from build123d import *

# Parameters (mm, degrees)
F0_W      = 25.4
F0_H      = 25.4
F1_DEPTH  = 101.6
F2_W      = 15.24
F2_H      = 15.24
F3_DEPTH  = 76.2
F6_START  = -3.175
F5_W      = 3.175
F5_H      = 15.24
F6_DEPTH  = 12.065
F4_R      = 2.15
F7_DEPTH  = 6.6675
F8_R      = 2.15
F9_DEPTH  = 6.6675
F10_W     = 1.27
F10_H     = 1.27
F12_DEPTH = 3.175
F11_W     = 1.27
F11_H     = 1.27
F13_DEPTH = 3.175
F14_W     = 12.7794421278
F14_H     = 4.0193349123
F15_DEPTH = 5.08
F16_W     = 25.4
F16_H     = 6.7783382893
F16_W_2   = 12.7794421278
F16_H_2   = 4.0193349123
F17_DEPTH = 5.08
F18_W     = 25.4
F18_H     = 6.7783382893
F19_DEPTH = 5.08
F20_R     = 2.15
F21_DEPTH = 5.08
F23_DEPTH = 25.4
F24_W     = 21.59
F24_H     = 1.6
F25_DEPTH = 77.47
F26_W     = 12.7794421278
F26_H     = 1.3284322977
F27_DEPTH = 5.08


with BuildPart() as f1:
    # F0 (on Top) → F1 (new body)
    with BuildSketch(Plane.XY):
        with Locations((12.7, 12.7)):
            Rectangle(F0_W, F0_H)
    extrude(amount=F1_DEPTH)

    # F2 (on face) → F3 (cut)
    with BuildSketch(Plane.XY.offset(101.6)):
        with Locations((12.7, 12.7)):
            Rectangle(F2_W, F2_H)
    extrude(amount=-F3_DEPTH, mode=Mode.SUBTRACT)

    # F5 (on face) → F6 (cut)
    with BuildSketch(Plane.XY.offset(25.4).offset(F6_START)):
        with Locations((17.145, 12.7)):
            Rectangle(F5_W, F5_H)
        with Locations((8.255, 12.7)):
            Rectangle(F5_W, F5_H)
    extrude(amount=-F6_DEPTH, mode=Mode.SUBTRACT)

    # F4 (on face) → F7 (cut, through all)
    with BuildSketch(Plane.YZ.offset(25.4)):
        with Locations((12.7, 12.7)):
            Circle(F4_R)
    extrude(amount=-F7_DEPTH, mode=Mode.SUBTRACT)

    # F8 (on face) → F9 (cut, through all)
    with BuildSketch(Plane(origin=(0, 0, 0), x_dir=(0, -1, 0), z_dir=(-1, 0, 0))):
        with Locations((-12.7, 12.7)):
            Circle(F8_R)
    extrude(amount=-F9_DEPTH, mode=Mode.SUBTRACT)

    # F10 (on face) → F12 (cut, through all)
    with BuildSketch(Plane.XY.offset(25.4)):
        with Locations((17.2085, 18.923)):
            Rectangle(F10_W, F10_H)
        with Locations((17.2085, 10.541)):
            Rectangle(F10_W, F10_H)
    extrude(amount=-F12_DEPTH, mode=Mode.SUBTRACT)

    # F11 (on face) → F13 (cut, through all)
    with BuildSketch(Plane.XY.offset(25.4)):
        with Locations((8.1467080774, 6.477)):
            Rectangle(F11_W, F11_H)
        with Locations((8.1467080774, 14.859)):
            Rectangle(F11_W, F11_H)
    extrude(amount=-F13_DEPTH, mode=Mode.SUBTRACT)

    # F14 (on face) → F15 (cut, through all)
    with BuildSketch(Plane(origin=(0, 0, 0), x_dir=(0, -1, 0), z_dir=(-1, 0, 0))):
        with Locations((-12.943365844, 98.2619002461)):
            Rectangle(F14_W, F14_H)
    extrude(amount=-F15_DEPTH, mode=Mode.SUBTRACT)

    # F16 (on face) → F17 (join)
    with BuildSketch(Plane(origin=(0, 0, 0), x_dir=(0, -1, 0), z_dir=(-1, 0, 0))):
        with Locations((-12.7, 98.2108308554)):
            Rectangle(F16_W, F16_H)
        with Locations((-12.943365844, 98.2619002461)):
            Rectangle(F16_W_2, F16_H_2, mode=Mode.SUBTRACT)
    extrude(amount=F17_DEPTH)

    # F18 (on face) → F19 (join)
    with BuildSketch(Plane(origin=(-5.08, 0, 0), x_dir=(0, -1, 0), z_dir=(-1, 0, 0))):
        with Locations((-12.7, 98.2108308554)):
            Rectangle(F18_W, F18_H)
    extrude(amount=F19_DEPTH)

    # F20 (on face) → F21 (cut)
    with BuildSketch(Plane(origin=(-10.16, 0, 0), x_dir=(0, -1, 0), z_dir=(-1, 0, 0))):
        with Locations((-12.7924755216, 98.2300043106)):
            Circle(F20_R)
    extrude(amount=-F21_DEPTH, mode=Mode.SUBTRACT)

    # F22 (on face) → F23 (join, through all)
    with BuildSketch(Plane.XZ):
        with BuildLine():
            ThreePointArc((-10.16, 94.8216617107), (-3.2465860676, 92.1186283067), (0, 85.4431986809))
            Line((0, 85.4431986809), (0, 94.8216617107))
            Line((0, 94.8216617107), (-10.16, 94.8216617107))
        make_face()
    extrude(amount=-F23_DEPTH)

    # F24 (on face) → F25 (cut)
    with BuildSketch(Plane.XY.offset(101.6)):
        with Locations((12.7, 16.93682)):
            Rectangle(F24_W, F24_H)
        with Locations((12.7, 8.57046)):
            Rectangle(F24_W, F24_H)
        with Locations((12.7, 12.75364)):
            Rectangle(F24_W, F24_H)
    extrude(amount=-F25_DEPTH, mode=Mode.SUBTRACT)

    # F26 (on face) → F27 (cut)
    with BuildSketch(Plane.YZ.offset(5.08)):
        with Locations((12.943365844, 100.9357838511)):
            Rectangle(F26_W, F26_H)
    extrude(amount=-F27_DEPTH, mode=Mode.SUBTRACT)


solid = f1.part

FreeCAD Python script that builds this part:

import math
import FreeCAD as App
import Part
import Sketcher

V = App.Vector
Q = App.Units.Quantity


def add_polygon(sketch, points):
    """Adds a closed chain of lines whose ends are joined by coincident constraints."""
    first, n = sketch.GeometryCount, len(points)
    for a, b in zip(points, points[1:] + points[:1]):
        sketch.addGeometry(Part.LineSegment(App.Vector(*a, 0), App.Vector(*b, 0)), False)
    for i in range(n):
        sketch.addConstraint(Sketcher.Constraint("Coincident", first + i, 2, first + (i + 1) % n, 1))

doc = App.newDocument("Part")
body = doc.addObject("PartDesign::Body", "Body")

sketch1 = doc.addObject("Sketcher::SketchObject", "Sketch")
body.addObject(sketch1)
sketch1.AttachmentSupport = (doc.XY_Plane, [""])
sketch1.MapMode = "FlatFace"
add_polygon(sketch1, [(0, 25), (0, 0), (25, 0), (25, 25)])
sketch1.addConstraint([
    Sketcher.Constraint("Vertical", 0),
    Sketcher.Constraint("Horizontal", 1),
    Sketcher.Constraint("Vertical", 2),
    Sketcher.Constraint("Horizontal", 3),
    Sketcher.Constraint("Coincident", 0, 2, -1, 1),
    Sketcher.Constraint("Equal", 3, 0),
    Sketcher.Constraint("DistanceX", 1, 1, 1, 2, Q("1 in")),
])
pad1 = doc.addObject("PartDesign::Pad", "Pad")
body.addObject(pad1)
pad1.Profile = sketch1
pad1.Length = Q("4 in")

sketch2 = doc.addObject("Sketcher::SketchObject", "Sketch001")
body.addObject(sketch2)
sketch2.AttachmentSupport = (doc.XY_Plane, [""])
sketch2.MapMode = "FlatFace"
sketch2.AttachmentOffset = App.Placement(V(0, 0, 4 * 25.4), App.Rotation())
add_polygon(sketch2, [(5, 20), (5, 5), (20, 5), (20, 20)])
sketch2.addConstraint([
    Sketcher.Constraint("Vertical", 0),
    Sketcher.Constraint("Horizontal", 1),
    Sketcher.Constraint("Vertical", 2),
    Sketcher.Constraint("Horizontal", 3),
    Sketcher.Constraint("Equal", 3, 0),
    Sketcher.Constraint("DistanceX", 1, 1, 1, 2, Q("0.6 in")),
    Sketcher.Constraint("DistanceX", -1, 1, 0, 2, Q("0.2 in")),
    Sketcher.Constraint("DistanceY", -1, 1, 0, 2, Q("0.2 in")),
])
pocket1 = doc.addObject("PartDesign::Pocket", "Pocket")
body.addObject(pocket1)
pocket1.Profile = sketch2
pocket1.Length = Q("3 in")

sketch3 = doc.addObject("Sketcher::SketchObject", "Sketch002")
body.addObject(sketch3)
sketch3.AttachmentSupport = (doc.XY_Plane, [""])
sketch3.MapMode = "FlatFace"
sketch3.AttachmentOffset = App.Placement(V(0, 0, 0.875 * 25.4), App.Rotation())
add_polygon(sketch3, [(15.6, 20.3), (15.6, 5.1), (18.7, 5.1), (18.7, 20.3)])
add_polygon(sketch3, [(6.7, 20.3), (6.7, 5.1), (9.8, 5.1), (9.8, 20.3)])
sketch3.addConstraint([
    Sketcher.Constraint("Vertical", 0),
    Sketcher.Constraint("Horizontal", 1),
    Sketcher.Constraint("Vertical", 2),
    Sketcher.Constraint("Horizontal", 3),
    Sketcher.Constraint("Vertical", 4),
    Sketcher.Constraint("Horizontal", 5),
    Sketcher.Constraint("Vertical", 6),
    Sketcher.Constraint("Horizontal", 7),
    Sketcher.Constraint("Horizontal", 1, 2, 4, 2),
    Sketcher.Constraint("Horizontal", 3, 2, 6, 2),
    Sketcher.Constraint("Equal", 3, 5),
    Sketcher.Constraint("DistanceY", 0, 2, 0, 1, Q("0.6 in")),
    Sketcher.Constraint("DistanceY", -1, 1, 0, 2, Q("0.2 in")),
    Sketcher.Constraint("DistanceX", 1, 1, 1, 2, Q("0.125 in")),
    Sketcher.Constraint("DistanceX", 4, 2, 0, 2, Q("0.35 in")),
    Sketcher.Constraint("DistanceX", -1, 1, 0, 2, Q("0.6125 in")),
])
pocket2 = doc.addObject("PartDesign::Pocket", "Pocket001")
body.addObject(pocket2)
pocket2.Profile = sketch3
pocket2.Length = Q("0.475 in")

sketch4 = doc.addObject("Sketcher::SketchObject", "Sketch003")
body.addObject(sketch4)
sketch4.AttachmentSupport = (doc.YZ_Plane, [""])
sketch4.MapMode = "FlatFace"
sketch4.AttachmentOffset = App.Placement(V(0, 0, 1 * 25.4), App.Rotation())
sketch4.addGeometry(Part.Circle(V(12.7, 12.7, 0), V(0, 0, 1), 2.1), False)
sketch4.addConstraint([
    Sketcher.Constraint("DistanceX", -1, 1, 0, 3, Q("0.5 in")),
    Sketcher.Constraint("DistanceY", -1, 1, 0, 3, Q("0.5 in")),
    Sketcher.Constraint("Diameter", 0, Q("4.3 mm")),
])
pocket3 = doc.addObject("PartDesign::Pocket", "Pocket002")
body.addObject(pocket3)
pocket3.Profile = sketch4
pocket3.Length = Q("0.2625 in")

sketch5 = doc.addObject("Sketcher::SketchObject", "Sketch004")
body.addObject(sketch5)
sketch5.AttachmentSupport = (doc.YZ_Plane, [""])
sketch5.MapMode = "FlatFace"
sketch5.addGeometry(Part.Circle(V(12.7, 12.7, 0), V(0, 0, 1), 2.1), False)
sketch5.addConstraint([
    Sketcher.Constraint("DistanceX", -1, 1, 0, 3, Q("0.5 in")),
    Sketcher.Constraint("DistanceY", -1, 1, 0, 3, Q("0.5 in")),
    Sketcher.Constraint("Diameter", 0, Q("4.3 mm")),
])
pocket4 = doc.addObject("PartDesign::Pocket", "Pocket003")
body.addObject(pocket4)
pocket4.Profile = sketch5
pocket4.Length = Q("0.2625 in")
pocket4.Reversed = True

sketch6 = doc.addObject("Sketcher::SketchObject", "Sketch005")
body.addObject(sketch6)
sketch6.AttachmentSupport = (doc.XY_Plane, [""])
sketch6.MapMode = "FlatFace"
sketch6.AttachmentOffset = App.Placement(V(0, 0, 1 * 25.4), App.Rotation())
add_polygon(sketch6, [(16.6, 19.6), (16.6, 18.3), (17.8, 18.3), (17.8, 19.6)])
add_polygon(sketch6, [(16.6, 11.2), (16.6, 9.9), (17.8, 9.9), (17.8, 11.2)])
sketch6.addConstraint([
    Sketcher.Constraint("Vertical", 0),
    Sketcher.Constraint("Horizontal", 1),
    Sketcher.Constraint("Vertical", 2),
    Sketcher.Constraint("Horizontal", 3),
    Sketcher.Constraint("Vertical", 4),
    Sketcher.Constraint("Horizontal", 5),
    Sketcher.Constraint("Vertical", 6),
    Sketcher.Constraint("Horizontal", 7),
    Sketcher.Constraint("Vertical", 3, 2, 4, 2),
    Sketcher.Constraint("Vertical", 2, 2, 5, 2),
    Sketcher.Constraint("Equal", 7, 0),
    Sketcher.Constraint("Equal", 2, 4),
    Sketcher.Constraint("DistanceX", 1, 1, 1, 2, Q("0.05 in")),
    Sketcher.Constraint("DistanceY", -1, 1, 0, 2, Q("0.72 in")),
    Sketcher.Constraint("DistanceY", -1, 1, 4, 2, Q("0.39 in")),
    Sketcher.Constraint("DistanceX", -1, 1, 0, 2, Q("0.6525 in")),
])
pocket5 = doc.addObject("PartDesign::Pocket", "Pocket004")
body.addObject(pocket5)
pocket5.Profile = sketch6
pocket5.Length = Q("0.125 in")

sketch7 = doc.addObject("Sketcher::SketchObject", "Sketch006")
body.addObject(sketch7)
sketch7.AttachmentSupport = (doc.XY_Plane, [""])
sketch7.MapMode = "FlatFace"
sketch7.AttachmentOffset = App.Placement(V(0, 0, 1 * 25.4), App.Rotation())
add_polygon(sketch7, [(7.5, 7.1), (7.5, 5.8), (8.8, 5.8), (8.8, 7.1)])
add_polygon(sketch7, [(7.5, 15.5), (7.5, 14.2), (8.8, 14.2), (8.8, 15.5)])
sketch7.addConstraint([
    Sketcher.Constraint("Vertical", 0),
    Sketcher.Constraint("Horizontal", 1),
    Sketcher.Constraint("Vertical", 2),
    Sketcher.Constraint("Horizontal", 3),
    Sketcher.Constraint("Vertical", 4),
    Sketcher.Constraint("Horizontal", 5),
    Sketcher.Constraint("Vertical", 6),
    Sketcher.Constraint("Horizontal", 7),
    Sketcher.Constraint("Vertical", 3, 2, 4, 2),
    Sketcher.Constraint("Vertical", 2, 2, 5, 2),
    Sketcher.Constraint("Equal", 7, 0),
    Sketcher.Constraint("Equal", 2, 4),
    Sketcher.Constraint("DistanceX", 1, 1, 1, 2, Q("0.05 in")),
    Sketcher.Constraint("DistanceY", -1, 1, 0, 2, Q("0.23 in")),
    Sketcher.Constraint("DistanceY", -1, 1, 4, 2, Q("0.56 in")),
    Sketcher.Constraint("DistanceX", -1, 1, 0, 2, Q("7.511708 mm")),
])
pocket6 = doc.addObject("PartDesign::Pocket", "Pocket005")
body.addObject(pocket6)
pocket6.Profile = sketch7
pocket6.Length = Q("0.125 in")

sketch8 = doc.addObject("Sketcher::SketchObject", "Sketch007")
body.addObject(sketch8)
sketch8.AttachmentSupport = (doc.YZ_Plane, [""])
sketch8.MapMode = "FlatFace"
add_polygon(sketch8, [(19.3, 100.3), (19.3, 96.3), (6.6, 96.3), (6.6, 100.3)])
sketch8.addConstraint([
    Sketcher.Constraint("Vertical", 0),
    Sketcher.Constraint("Horizontal", 1),
    Sketcher.Constraint("Vertical", 2),
    Sketcher.Constraint("Horizontal", 3),
    Sketcher.Constraint("DistanceX", 1, 2, 1, 1, Q("12.779442 mm")),
    Sketcher.Constraint("DistanceY", 0, 2, 0, 1, Q("4.019335 mm")),
    Sketcher.Constraint("DistanceX", -1, 1, 0, 2, Q("19.333087 mm")),
    Sketcher.Constraint("DistanceY", -1, 1, 0, 2, Q("96.252233 mm")),
])
pocket7 = doc.addObject("PartDesign::Pocket", "Pocket006")
body.addObject(pocket7)
pocket7.Profile = sketch8
pocket7.Length = Q("0.2 in")
pocket7.Reversed = True

sketch9 = doc.addObject("Sketcher::SketchObject", "Sketch008")
body.addObject(sketch9)
sketch9.AttachmentSupport = (doc.YZ_Plane, [""])
sketch9.MapMode = "FlatFace"
add_polygon(sketch9, [(25.4, 101.6), (25.4, 94.8), (0, 94.8), (0, 101.6)])
add_polygon(sketch9, [(6.6, 96.3), (19.3, 96.3), (19.3, 100.3), (6.6, 100.3)])
sketch9.addConstraint([
    Sketcher.Constraint("Vertical", 0),
    Sketcher.Constraint("Horizontal", 1),
    Sketcher.Constraint("Vertical", 2),
    Sketcher.Constraint("Horizontal", 3),
    Sketcher.Constraint("Horizontal", 4),
    Sketcher.Constraint("Vertical", 5),
    Sketcher.Constraint("Horizontal", 6),
    Sketcher.Constraint("Vertical", 7),
    Sketcher.Constraint("PointOnObject", 1, 2, -2),
    Sketcher.Constraint("DistanceX", 1, 2, 1, 1, Q("1 in")),
    Sketcher.Constraint("DistanceY", -1, 1, 2, 2, Q("4 in")),
    Sketcher.Constraint("DistanceY", 0, 2, 0, 1, Q("6.778338 mm")),
    Sketcher.Constraint("DistanceX", 4, 1, 4, 2, Q("12.779442 mm")),
    Sketcher.Constraint("DistanceY", 5, 1, 5, 2, Q("4.019335 mm")),
    Sketcher.Constraint("DistanceY", 0, 2, 4, 2, Q("1.430571 mm")),
    Sketcher.Constraint("DistanceX", -1, 1, 4, 2, Q("19.333087 mm")),
])
pad2 = doc.addObject("PartDesign::Pad", "Pad001")
body.addObject(pad2)
pad2.Profile = sketch9
pad2.Length = Q("0.2 in")
pad2.Reversed = True

sketch10 = doc.addObject("Sketcher::SketchObject", "Sketch009")
body.addObject(sketch10)
sketch10.AttachmentSupport = (doc.YZ_Plane, [""])
sketch10.MapMode = "FlatFace"
sketch10.AttachmentOffset = App.Placement(V(0, 0, -0.2 * 25.4), App.Rotation())
add_polygon(sketch10, [(25, 102), (25, 95), (0, 95), (0, 102)])
sketch10.addConstraint([
    Sketcher.Constraint("Vertical", 0),
    Sketcher.Constraint("Horizontal", 1),
    Sketcher.Constraint("Vertical", 2),
    Sketcher.Constraint("Horizontal", 3),
    Sketcher.Constraint("PointOnObject", 1, 2, -2),
    Sketcher.Constraint("DistanceX", 1, 2, 1, 1, Q("1 in")),
    Sketcher.Constraint("DistanceY", -1, 1, 2, 2, Q("4 in")),
    Sketcher.Constraint("DistanceY", 0, 2, 0, 1, Q("6.778338 mm")),
])
pad3 = doc.addObject("PartDesign::Pad", "Pad002")
body.addObject(pad3)
pad3.Profile = sketch10
pad3.Length = Q("0.2 in")
pad3.Reversed = True

sketch11 = doc.addObject("Sketcher::SketchObject", "Sketch010")
body.addObject(sketch11)
sketch11.AttachmentSupport = (doc.YZ_Plane, [""])
sketch11.MapMode = "FlatFace"
sketch11.AttachmentOffset = App.Placement(V(0, 0, -0.4 * 25.4), App.Rotation())
sketch11.addGeometry(Part.Circle(V(12.8, 98.2, 0), V(0, 0, 1), 2.1), False)
sketch11.addConstraint([
    Sketcher.Constraint("Diameter", 0, Q("4.3 mm")),
    Sketcher.Constraint("DistanceX", -1, 1, 0, 3, Q("12.792476 mm")),
    Sketcher.Constraint("DistanceY", -1, 1, 0, 3, Q("98.230004 mm")),
])
pocket8 = doc.addObject("PartDesign::Pocket", "Pocket007")
body.addObject(pocket8)
pocket8.Profile = sketch11
pocket8.Length = Q("0.2 in")
pocket8.Reversed = True

sketch12 = doc.addObject("Sketcher::SketchObject", "Sketch011")
body.addObject(sketch12)
sketch12.AttachmentSupport = (doc.XZ_Plane, [""])
sketch12.MapMode = "FlatFace"
sketch12.addGeometry([
    Part.ArcOfCircle(Part.Circle(V(-10, 85, 0), V(0, 0, 1), 10), math.radians(5), math.radians(90)),
    Part.LineSegment(V(0, 85, 0), V(0, 95, 0)),
    Part.LineSegment(V(0, 95, 0), V(-10, 95, 0)),
], False)
sketch12.addConstraint([
    Sketcher.Constraint("Coincident", 0, 1, 1, 1),
    Sketcher.Constraint("Coincident", 1, 2, 2, 1),
    Sketcher.Constraint("Tangent", 2, 2, 0, 2),
    Sketcher.Constraint("Vertical", 1),
    Sketcher.Constraint("Horizontal", 2),
    Sketcher.Constraint("PointOnObject", 0, 1, -2),
    Sketcher.Constraint("DistanceX", 2, 2, 2, 1, Q("0.4 in")),
    Sketcher.Constraint("Radius", 0, Q("10.192564 mm")),
    Sketcher.Constraint("DistanceY", -1, 1, 0, 1, Q("85.443199 mm")),
])
pad4 = doc.addObject("PartDesign::Pad", "Pad003")
body.addObject(pad4)
pad4.Profile = sketch12
pad4.Length = Q("1 in")
pad4.Reversed = True

sketch13 = doc.addObject("Sketcher::SketchObject", "Sketch012")
body.addObject(sketch13)
sketch13.AttachmentSupport = (doc.XY_Plane, [""])
sketch13.MapMode = "FlatFace"
sketch13.AttachmentOffset = App.Placement(V(0, 0, 4 * 25.4), App.Rotation())
add_polygon(sketch13, [(1.9, 17.7), (1.9, 16.1), (23.5, 16.1), (23.5, 17.7)])
add_polygon(sketch13, [(1.9, 9.4), (1.9, 7.8), (23.5, 7.8), (23.5, 9.4)])
add_polygon(sketch13, [(1.9, 13.6), (1.9, 12), (23.5, 12), (23.5, 13.6)])
sketch13.addConstraint([
    Sketcher.Constraint("Vertical", 0),
    Sketcher.Constraint("Horizontal", 1),
    Sketcher.Constraint("Vertical", 2),
    Sketcher.Constraint("Horizontal", 3),
    Sketcher.Constraint("Vertical", 4),
    Sketcher.Constraint("Horizontal", 5),
    Sketcher.Constraint("Vertical", 6),
    Sketcher.Constraint("Horizontal", 7),
    Sketcher.Constraint("Vertical", 8),
    Sketcher.Constraint("Horizontal", 9),
    Sketcher.Constraint("Vertical", 10),
    Sketcher.Constraint("Horizontal", 11),
    Sketcher.Constraint("Vertical", 3, 2, 4, 2),
    Sketcher.Constraint("Vertical", 2, 2, 5, 2),
    Sketcher.Constraint("Vertical", 7, 2, 8, 2),
    Sketcher.Constraint("Vertical", 6, 2, 9, 2),
    Sketcher.Constraint("Equal", 2, 4),
    Sketcher.Constraint("Equal", 6, 8),
    Sketcher.Constraint("DistanceX", 1, 1, 1, 2, Q("0.85 in")),
    Sketcher.Constraint("DistanceX", -1, 1, 0, 2, Q("0.075 in")),
    Sketcher.Constraint("DistanceY", 0, 2, 0, 1, Q("1.6 mm")),
    Sketcher.Constraint("DistanceY", -1, 1, 2, 2, Q("0.6983 in")),
    Sketcher.Constraint("DistanceY", 7, 2, 8, 2, Q("0.1017 in")),
    Sketcher.Constraint("DistanceY", 10, 2, 1, 2, Q("0.1017 in")),
])
pocket9 = doc.addObject("PartDesign::Pocket", "Pocket008")
body.addObject(pocket9)
pocket9.Profile = sketch13
pocket9.Length = Q("3.05 in")

sketch14 = doc.addObject("Sketcher::SketchObject", "Sketch013")
body.addObject(sketch14)
sketch14.AttachmentSupport = (doc.YZ_Plane, [""])
sketch14.MapMode = "FlatFace"
sketch14.AttachmentOffset = App.Placement(V(0, 0, 0.2 * 25.4), App.Rotation())
add_polygon(sketch14, [(6.6, 101.6), (6.6, 100.3), (19.3, 100.3), (19.3, 101.6)])
sketch14.addConstraint([
    Sketcher.Constraint("Vertical", 0),
    Sketcher.Constraint("Horizontal", 1),
    Sketcher.Constraint("Vertical", 2),
    Sketcher.Constraint("Horizontal", 3),
    Sketcher.Constraint("DistanceY", -1, 1, 2, 2, Q("4 in")),
    Sketcher.Constraint("DistanceX", 1, 1, 1, 2, Q("12.779442 mm")),
    Sketcher.Constraint("DistanceY", 0, 2, 0, 1, Q("1.328432 mm")),
    Sketcher.Constraint("DistanceX", -1, 1, 0, 2, Q("6.553645 mm")),
])
pocket10 = doc.addObject("PartDesign::Pocket", "Pocket009")
body.addObject(pocket10)
pocket10.Profile = sketch14
pocket10.Length = Q("0.2 in")

doc.recompute()
